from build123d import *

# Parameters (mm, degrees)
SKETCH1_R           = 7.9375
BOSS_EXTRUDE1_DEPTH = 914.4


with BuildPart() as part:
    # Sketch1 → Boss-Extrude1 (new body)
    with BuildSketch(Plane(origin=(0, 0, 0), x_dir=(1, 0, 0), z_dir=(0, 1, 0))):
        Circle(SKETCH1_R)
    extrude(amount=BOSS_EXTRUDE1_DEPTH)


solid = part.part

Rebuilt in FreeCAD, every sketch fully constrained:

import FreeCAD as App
import Part
import Sketcher

V = App.Vector
Q = App.Units.Quantity

doc = App.newDocument("Part")
params = doc.addObject("Spreadsheet::Sheet", "Params")
for row, (alias, value) in enumerate([
    ("sketch1_diameter", "0.625 in"),
    ("pad1_length", "36 in"),
], start=1):
    params.set(f"A{row}", alias)
    params.set(f"B{row}", "=" + value)
    params.setAlias(f"B{row}", alias)

body = doc.addObject("PartDesign::Body", "Body")

# Sketch on XZ plane
sketch1 = body.newObject("Sketcher::SketchObject", "Sketch")
sketch1.AttachmentSupport = (doc.getObject("XZ_Plane"), [""])
sketch1.MapMode = "FlatFace"
sketch1.addGeometry(Part.Circle(V(0, 0, 0), V(0, 0, 1), 8), False)
sketch1.addConstraint([
    Sketcher.Constraint("Coincident", 0, 3, -1, 1),
    Sketcher.Constraint("Diameter", 0, Q("0.625 in")),
])
sketch1.setExpression("Constraints[1]", "Params.sketch1_diameter")
pad1 = body.newObject("PartDesign::Pad", "Pad")
pad1.Profile = sketch1
pad1.setExpression("Length", "Params.pad1_length")
pad1.Reversed = True

doc.recompute()
